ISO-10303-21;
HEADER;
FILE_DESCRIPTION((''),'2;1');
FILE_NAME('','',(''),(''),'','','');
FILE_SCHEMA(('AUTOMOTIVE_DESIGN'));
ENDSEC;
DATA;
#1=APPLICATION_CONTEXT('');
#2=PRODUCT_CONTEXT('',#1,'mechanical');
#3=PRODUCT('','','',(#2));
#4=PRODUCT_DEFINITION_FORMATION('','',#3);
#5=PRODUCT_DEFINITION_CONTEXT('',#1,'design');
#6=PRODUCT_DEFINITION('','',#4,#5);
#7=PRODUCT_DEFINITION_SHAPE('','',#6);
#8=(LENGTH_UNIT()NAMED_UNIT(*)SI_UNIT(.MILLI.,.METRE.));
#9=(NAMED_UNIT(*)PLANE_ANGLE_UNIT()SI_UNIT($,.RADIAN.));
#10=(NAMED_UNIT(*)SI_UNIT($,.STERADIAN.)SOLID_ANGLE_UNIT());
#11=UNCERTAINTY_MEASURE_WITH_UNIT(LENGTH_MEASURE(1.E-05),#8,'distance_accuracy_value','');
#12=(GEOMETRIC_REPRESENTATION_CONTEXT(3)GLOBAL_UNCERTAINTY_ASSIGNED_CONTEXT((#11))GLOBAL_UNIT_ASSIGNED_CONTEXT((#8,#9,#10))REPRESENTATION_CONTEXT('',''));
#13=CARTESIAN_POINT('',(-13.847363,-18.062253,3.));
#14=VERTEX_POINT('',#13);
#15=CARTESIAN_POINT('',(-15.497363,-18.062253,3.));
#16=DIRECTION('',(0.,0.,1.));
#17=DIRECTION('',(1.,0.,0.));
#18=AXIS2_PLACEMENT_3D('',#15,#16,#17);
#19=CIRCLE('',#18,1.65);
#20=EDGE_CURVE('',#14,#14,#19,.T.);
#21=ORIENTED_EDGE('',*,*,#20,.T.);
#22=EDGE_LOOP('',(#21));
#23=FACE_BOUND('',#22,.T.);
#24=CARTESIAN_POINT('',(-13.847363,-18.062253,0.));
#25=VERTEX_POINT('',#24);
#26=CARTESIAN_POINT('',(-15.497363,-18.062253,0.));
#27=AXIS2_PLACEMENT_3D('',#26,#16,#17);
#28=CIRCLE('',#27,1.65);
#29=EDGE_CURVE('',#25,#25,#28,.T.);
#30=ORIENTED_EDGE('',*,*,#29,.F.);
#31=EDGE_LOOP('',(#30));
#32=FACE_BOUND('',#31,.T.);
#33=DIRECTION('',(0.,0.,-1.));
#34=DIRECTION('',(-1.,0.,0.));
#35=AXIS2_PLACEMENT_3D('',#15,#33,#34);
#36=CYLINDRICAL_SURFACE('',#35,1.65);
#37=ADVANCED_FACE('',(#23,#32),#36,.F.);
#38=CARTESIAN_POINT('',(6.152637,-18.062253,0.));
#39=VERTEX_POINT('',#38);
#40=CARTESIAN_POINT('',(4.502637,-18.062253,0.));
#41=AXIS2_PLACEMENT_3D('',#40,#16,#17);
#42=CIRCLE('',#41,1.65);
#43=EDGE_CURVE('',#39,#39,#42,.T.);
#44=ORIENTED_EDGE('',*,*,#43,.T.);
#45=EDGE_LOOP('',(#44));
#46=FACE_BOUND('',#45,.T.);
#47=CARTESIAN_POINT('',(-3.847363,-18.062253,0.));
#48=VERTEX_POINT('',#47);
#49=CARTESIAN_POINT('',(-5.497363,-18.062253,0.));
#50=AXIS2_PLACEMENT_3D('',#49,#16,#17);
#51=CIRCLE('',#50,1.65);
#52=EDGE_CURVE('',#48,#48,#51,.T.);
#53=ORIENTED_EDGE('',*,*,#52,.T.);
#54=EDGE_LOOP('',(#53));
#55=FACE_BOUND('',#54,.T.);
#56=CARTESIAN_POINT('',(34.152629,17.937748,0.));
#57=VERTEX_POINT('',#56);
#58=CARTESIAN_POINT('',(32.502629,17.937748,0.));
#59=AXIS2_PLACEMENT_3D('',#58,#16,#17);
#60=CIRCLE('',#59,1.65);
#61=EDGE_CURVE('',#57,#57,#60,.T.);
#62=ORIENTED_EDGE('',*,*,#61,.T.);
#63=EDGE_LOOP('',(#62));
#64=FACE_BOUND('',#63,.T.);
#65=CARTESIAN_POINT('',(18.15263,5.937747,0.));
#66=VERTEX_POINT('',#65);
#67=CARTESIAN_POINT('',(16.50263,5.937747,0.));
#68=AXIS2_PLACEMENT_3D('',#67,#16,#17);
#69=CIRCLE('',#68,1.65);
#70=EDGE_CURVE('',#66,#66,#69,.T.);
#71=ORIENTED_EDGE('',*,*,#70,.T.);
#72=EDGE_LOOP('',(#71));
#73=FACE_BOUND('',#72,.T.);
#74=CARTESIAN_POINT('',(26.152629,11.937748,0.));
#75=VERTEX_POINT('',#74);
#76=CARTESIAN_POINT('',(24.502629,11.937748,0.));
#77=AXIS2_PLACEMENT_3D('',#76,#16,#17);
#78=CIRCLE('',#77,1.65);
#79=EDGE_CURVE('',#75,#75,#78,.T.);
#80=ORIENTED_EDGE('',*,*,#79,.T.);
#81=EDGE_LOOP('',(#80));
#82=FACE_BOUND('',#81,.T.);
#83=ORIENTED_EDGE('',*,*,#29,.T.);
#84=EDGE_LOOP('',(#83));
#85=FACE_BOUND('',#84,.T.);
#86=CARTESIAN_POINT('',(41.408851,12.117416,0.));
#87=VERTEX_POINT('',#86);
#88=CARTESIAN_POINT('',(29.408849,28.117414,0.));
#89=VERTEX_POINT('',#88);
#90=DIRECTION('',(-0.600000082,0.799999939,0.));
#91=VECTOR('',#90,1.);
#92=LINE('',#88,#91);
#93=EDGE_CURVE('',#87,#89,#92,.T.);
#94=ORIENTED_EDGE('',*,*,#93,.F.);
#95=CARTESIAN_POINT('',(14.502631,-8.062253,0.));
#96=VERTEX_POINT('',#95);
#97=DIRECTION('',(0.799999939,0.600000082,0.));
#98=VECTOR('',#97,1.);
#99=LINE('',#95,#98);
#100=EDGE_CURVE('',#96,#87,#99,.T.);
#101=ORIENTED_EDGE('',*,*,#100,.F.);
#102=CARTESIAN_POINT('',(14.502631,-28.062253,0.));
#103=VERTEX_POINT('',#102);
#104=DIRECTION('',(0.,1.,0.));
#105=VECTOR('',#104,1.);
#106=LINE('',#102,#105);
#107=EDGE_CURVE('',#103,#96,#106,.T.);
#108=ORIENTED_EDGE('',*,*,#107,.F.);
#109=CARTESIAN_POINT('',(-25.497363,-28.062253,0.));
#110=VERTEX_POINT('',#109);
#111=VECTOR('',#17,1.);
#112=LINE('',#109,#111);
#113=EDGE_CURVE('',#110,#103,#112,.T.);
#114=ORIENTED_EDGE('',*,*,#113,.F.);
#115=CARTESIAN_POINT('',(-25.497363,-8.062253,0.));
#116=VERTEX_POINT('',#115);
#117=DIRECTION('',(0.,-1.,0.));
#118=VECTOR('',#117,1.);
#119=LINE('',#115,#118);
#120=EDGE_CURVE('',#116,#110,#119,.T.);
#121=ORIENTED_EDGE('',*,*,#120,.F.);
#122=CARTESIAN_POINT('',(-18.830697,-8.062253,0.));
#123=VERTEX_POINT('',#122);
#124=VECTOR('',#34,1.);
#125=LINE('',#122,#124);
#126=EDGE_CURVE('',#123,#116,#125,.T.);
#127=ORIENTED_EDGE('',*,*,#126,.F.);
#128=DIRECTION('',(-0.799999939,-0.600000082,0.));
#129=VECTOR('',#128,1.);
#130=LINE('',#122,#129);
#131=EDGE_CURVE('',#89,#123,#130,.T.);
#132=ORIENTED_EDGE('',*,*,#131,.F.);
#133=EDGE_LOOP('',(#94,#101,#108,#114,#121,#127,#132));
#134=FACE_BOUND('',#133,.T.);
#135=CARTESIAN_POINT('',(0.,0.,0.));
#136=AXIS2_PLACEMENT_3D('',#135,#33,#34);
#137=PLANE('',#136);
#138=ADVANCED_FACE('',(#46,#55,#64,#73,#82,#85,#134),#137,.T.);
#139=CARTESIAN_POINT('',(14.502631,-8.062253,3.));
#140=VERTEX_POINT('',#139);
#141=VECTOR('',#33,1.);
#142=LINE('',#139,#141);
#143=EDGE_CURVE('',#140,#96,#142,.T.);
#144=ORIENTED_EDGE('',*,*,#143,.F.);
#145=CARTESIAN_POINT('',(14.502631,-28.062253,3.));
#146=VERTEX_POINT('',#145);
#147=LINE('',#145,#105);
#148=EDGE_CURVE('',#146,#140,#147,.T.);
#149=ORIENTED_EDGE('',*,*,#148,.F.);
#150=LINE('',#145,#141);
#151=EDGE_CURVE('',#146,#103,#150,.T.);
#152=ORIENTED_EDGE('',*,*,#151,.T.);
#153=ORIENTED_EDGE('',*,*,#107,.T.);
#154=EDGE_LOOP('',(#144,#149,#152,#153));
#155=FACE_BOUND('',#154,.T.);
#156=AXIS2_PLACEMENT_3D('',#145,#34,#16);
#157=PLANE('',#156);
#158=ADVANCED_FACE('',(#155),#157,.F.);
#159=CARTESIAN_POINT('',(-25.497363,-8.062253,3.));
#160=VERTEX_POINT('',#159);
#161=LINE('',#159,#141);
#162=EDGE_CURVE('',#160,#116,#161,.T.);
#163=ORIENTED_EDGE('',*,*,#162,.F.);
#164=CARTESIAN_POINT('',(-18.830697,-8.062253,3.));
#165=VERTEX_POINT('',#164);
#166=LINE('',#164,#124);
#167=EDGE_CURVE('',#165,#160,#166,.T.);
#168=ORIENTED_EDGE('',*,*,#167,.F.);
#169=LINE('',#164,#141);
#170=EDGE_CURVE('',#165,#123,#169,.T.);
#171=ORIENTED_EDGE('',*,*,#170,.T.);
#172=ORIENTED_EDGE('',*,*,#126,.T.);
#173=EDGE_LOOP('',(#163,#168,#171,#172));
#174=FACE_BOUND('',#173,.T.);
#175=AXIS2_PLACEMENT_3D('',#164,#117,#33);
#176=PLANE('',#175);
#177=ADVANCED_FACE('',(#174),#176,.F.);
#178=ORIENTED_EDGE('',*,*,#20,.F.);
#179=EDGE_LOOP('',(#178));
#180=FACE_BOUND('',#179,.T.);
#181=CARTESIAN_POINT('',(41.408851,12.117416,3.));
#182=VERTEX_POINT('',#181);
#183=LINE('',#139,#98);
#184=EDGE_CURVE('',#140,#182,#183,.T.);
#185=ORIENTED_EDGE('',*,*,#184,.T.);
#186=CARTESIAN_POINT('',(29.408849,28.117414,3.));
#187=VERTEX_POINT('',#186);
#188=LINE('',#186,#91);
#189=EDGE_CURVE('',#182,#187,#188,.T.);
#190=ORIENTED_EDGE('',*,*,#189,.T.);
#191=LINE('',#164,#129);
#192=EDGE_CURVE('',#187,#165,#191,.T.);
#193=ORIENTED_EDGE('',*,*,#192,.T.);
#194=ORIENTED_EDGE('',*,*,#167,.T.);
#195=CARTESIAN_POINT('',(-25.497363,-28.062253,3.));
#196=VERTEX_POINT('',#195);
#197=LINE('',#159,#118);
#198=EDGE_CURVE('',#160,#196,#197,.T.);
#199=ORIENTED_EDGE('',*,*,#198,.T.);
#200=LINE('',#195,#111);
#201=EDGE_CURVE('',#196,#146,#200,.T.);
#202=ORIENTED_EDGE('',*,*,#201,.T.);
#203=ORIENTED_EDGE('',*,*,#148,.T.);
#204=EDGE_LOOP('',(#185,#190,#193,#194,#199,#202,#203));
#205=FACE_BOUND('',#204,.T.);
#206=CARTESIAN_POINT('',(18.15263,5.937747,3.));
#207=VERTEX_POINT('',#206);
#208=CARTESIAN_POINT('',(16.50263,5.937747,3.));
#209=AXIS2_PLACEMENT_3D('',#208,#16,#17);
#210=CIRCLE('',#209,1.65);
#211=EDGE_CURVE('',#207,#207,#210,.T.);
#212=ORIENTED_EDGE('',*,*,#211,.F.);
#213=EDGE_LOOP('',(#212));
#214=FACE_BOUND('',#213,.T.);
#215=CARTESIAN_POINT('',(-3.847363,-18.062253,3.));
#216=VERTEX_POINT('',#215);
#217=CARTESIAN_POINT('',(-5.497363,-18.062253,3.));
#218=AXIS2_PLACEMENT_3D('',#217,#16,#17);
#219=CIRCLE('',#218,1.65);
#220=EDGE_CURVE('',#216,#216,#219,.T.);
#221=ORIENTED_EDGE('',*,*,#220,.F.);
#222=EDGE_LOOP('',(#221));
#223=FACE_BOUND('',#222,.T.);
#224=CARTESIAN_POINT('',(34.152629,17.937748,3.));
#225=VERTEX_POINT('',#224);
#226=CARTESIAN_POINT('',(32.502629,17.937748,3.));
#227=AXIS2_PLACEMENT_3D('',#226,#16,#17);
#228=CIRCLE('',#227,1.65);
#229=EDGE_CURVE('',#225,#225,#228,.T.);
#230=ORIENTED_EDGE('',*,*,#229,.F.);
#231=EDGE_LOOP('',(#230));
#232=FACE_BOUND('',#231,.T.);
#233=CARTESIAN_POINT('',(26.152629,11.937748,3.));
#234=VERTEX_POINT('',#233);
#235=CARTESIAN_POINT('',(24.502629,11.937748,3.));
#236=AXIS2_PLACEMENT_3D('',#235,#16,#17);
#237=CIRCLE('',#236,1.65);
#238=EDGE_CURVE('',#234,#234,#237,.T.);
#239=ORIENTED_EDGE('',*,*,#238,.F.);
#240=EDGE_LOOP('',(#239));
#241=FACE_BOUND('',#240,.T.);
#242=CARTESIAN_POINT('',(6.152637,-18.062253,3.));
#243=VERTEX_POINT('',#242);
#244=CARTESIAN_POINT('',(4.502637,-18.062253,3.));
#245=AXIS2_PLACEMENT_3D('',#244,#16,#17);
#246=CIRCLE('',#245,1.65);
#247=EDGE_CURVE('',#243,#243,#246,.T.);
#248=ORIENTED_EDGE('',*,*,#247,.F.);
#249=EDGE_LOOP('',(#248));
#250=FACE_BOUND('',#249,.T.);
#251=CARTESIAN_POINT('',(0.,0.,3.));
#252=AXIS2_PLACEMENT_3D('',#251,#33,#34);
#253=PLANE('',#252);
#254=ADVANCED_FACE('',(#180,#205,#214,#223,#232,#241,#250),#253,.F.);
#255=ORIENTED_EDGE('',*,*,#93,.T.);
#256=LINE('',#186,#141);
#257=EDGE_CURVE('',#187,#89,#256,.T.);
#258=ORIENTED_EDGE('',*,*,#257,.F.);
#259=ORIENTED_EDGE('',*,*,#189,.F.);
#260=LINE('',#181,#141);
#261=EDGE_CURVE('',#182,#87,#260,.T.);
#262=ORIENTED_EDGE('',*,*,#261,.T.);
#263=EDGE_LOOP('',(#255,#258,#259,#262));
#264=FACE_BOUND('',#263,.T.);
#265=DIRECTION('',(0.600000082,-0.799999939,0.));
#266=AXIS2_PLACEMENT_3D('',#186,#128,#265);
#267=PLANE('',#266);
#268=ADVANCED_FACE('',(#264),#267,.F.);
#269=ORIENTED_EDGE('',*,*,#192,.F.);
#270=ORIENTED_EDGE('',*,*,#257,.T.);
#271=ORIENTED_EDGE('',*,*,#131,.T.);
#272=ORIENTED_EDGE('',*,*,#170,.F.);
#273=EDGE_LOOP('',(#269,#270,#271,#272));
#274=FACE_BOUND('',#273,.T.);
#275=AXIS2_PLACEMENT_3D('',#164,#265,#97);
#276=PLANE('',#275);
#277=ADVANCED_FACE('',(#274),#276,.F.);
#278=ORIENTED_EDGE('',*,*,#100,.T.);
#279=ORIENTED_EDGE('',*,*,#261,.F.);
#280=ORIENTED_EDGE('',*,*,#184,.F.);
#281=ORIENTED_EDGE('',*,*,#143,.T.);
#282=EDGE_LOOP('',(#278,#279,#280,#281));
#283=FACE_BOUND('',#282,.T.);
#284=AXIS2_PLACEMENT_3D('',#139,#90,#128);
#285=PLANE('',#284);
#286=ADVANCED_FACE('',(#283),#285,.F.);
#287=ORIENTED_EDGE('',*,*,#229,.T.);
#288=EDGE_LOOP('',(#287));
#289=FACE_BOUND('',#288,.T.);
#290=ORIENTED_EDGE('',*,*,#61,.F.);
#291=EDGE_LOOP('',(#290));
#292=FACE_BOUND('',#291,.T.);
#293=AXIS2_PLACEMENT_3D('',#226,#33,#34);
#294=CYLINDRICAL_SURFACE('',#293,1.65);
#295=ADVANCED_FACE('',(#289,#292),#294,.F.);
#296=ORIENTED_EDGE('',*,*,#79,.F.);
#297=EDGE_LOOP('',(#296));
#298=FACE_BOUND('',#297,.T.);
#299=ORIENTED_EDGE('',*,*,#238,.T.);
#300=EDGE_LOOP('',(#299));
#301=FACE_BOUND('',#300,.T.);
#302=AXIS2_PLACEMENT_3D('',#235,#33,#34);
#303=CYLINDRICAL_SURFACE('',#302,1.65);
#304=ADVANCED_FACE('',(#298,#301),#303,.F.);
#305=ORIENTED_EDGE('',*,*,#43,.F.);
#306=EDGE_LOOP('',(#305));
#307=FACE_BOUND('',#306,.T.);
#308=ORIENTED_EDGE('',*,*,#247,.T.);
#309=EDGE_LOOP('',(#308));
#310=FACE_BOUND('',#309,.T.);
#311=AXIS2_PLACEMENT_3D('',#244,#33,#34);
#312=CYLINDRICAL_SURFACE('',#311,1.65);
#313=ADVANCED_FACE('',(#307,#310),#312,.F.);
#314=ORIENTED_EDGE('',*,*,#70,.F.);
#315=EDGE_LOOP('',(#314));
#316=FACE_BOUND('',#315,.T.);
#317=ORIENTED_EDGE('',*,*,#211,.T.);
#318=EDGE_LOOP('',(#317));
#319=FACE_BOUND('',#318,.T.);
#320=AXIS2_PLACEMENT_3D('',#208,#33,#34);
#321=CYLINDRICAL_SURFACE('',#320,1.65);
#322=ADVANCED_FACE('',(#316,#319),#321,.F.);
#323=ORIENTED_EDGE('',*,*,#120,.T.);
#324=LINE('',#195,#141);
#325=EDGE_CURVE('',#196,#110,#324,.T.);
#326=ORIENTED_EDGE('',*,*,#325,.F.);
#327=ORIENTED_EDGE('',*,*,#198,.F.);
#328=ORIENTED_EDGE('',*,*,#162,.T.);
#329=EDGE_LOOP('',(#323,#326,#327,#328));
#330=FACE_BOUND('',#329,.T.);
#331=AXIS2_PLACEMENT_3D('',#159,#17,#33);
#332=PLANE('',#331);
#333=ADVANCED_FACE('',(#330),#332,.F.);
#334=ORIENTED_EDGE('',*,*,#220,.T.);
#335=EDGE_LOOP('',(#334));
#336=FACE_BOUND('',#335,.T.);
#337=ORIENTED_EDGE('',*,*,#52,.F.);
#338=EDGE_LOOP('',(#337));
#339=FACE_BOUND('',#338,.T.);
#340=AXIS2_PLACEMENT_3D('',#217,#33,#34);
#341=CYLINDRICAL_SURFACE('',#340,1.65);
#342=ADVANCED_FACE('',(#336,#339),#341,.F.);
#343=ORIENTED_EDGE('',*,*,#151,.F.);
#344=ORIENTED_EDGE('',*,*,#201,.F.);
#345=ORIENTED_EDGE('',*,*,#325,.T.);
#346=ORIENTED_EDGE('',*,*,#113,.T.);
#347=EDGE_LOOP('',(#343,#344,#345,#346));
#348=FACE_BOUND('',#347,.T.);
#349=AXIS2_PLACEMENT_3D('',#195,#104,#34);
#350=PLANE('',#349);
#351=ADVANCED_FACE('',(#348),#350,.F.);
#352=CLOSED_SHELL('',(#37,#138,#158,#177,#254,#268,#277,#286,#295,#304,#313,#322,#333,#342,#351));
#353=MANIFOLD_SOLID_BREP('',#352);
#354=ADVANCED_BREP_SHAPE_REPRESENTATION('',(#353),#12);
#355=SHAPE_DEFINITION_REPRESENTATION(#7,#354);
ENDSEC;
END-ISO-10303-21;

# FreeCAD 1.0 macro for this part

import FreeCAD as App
import Part
import Sketcher
from FreeCAD import Vector
Q = App.Units.Quantity


def add_polygon(sketch, points):
    """Adds a closed chain of lines whose ends are joined by coincident constraints."""
    first, n = sketch.GeometryCount, len(points)
    for a, b in zip(points, points[1:] + points[:1]):
        sketch.addGeometry(Part.LineSegment(App.Vector(*a, 0), App.Vector(*b, 0)), False)
    for i in range(n):
        sketch.addConstraint(Sketcher.Constraint("Coincident", first + i, 2, first + (i + 1) % n, 1))

doc = App.newDocument("Part")
params = doc.addObject("Spreadsheet::Sheet", "Params")
for row, (alias, value) in enumerate([
    ("sketch1_diameter", "3.3 mm"),
    ("sketch1_height", "20 mm"),
    ("sketch1_length", "20 mm"),
    ("pad1_length", "3 mm"),
], start=1):
    params.set(f"A{row}", alias)
    params.set(f"B{row}", "=" + value)
    params.setAlias(f"B{row}", alias)

body = doc.addObject("PartDesign::Body", "Body")

# Sketch on XY plane
sketch1 = body.newObject("Sketcher::SketchObject", "Sketch")
sketch1.AttachmentSupport = (doc.getObject("XY_Plane"), [""])
sketch1.MapMode = "FlatFace"
add_polygon(sketch1, [(-18.8, -8.1), (-25.5, -8.1), (-25.5, -28.1), (14.5, -28.1), (14.5, -8.1), (41.4, 12.1), (29.4, 28.1)])  # lines 0-6
sketch1.addGeometry(Part.Circle(Vector(-15.5, -18.1, 0), Vector(0, 0, 1), 1.6), False)  # 7
sketch1.addGeometry(Part.Circle(Vector(-5.5, -18.1, 0), Vector(0, 0, 1), 1.6), False)  # 8
sketch1.addGeometry(Part.Circle(Vector(4.5, -18.1, 0), Vector(0, 0, 1), 1.6), False)  # 9
sketch1.addGeometry(Part.Circle(Vector(16.5, 5.9, 0), Vector(0, 0, 1), 1.6), False)  # 10
sketch1.addGeometry(Part.Circle(Vector(24.5, 11.9, 0), Vector(0, 0, 1), 1.6), False)  # 11
sketch1.addGeometry(Part.Circle(Vector(32.5, 17.9, 0), Vector(0, 0, 1), 1.6), False)  # 12
sketch1.addConstraint([
    Sketcher.Constraint("Horizontal", 0),
    Sketcher.Constraint("Vertical", 1),
    Sketcher.Constraint("Horizontal", 2),
    Sketcher.Constraint("Vertical", 3),
    Sketcher.Constraint("Equal", 7, 8),
    Sketcher.Constraint("Equal", 8, 9),
    Sketcher.Constraint("Equal", 9, 10),
    Sketcher.Constraint("Equal", 10, 11),
    Sketcher.Constraint("Equal", 11, 12),
    Sketcher.Constraint("Perpendicular", 4, 5),
    Sketcher.Constraint("Perpendicular", 5, 6),
    Sketcher.Constraint("Horizontal", 7, 3, 8, 3),
    Sketcher.Constraint("Horizontal", 8, 3, 9, 3),
    Sketcher.Constraint("Horizontal", 0, 2, 3, 2),
    Sketcher.Constraint("Diameter", 7, Q("3.3 mm")),
    Sketcher.Constraint("DistanceY", 1, 2, 1, 1, Q("20 mm")),
    Sketcher.Constraint("Distance", 5, Q("20 mm")),
    Sketcher.Constraint("DistanceX", 7, 3, 8, 3, Q("10 mm")),
    Sketcher.Constraint("DistanceX", 8, 3, 9, 3, Q("10 mm")),
    Sketcher.Constraint("DistanceY", 9, 3, 10, 3, Q("24 mm")),
    Sketcher.Constraint("DistanceX", 10, 3, 11, 3, Q("7.999999 mm")),
    Sketcher.Constraint("DistanceY", 10, 3, 11, 3, Q("6.000001 mm")),
    Sketcher.Constraint("DistanceX", 11, 3, 12, 3, Q("7.999999 mm")),
    Sketcher.Constraint("DistanceY", 11, 3, 12, 3, Q("6.000001 mm")),
    Sketcher.Constraint("DistanceX", 0, 2, 7, 3, Q("10 mm")),
    Sketcher.Constraint("DistanceY", 7, 3, 0, 2, Q("10 mm")),
    Sketcher.Constraint("DistanceX", 2, 2, 10, 3, Q("1.999999 mm")),
    Sketcher.Constraint("DistanceX", 5, 2, 4, 2, Q("12.000002 mm")),
    Sketcher.Constraint("Distance", 6, Q("60.299438 mm")),
    Sketcher.Constraint("DistanceX", 0, 2, 0, 1, Q("6.666666 mm")),
    Sketcher.Constraint("DistanceX", -1, 1, 10, 3, Q("16.50263 mm")),
    Sketcher.Constraint("DistanceY", -1, 1, 12, 3, Q("17.937748 mm")),
])
sketch1.setExpression("Constraints[21]", "Params.sketch1_diameter")
sketch1.setExpression("Constraints[22]", "Params.sketch1_height")
sketch1.setExpression("Constraints[23]", "Params.sketch1_length")
pad1 = body.newObject("PartDesign::Pad", "Pad")
pad1.Profile = sketch1
pad1.setExpression("Length", "Params.pad1_length")

doc.recompute()
